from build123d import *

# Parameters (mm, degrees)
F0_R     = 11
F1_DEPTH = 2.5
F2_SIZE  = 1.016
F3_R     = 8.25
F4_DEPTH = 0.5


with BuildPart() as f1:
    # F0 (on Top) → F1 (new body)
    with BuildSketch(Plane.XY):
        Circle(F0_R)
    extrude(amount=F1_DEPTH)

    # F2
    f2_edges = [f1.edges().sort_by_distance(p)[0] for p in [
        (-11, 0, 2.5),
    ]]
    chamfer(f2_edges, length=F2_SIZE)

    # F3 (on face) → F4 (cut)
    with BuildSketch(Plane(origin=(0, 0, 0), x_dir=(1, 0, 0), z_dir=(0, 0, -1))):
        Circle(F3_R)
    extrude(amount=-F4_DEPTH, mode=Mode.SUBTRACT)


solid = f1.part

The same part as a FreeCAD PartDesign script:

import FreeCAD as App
import Part
import Sketcher
from FreeCAD import Vector


def edges_at(feature, points):
    """Names of the edges that pass closest to the given points."""
    edges = feature.Shape.Edges
    near = lambda p: min(range(len(edges)), key=lambda i: edges[i].distToShape(Part.Vertex(*p))[0])
    return sorted({f"Edge{near(p) + 1}" for p in points})

doc = App.newDocument("Part")
params = doc.addObject("Spreadsheet::Sheet", "Params")
for row, (alias, value) in enumerate([
    ("sketch1_diameter", "22 mm"),
    ("pad1_length", "2.5 mm"),
    ("chamfer_size", "1.016 mm"),
    ("sketch2_diameter", "16.5 mm"),
    ("pocket1_length", "0.5 mm"),
], start=1):
    params.set(f"A{row}", alias)
    params.set(f"B{row}", "=" + value)
    params.setAlias(f"B{row}", alias)

body = doc.addObject("PartDesign::Body", "Body")

# Sketch on XY plane
sketch1 = body.newObject("Sketcher::SketchObject", "Sketch")
sketch1.AttachmentSupport = (doc.getObject("XY_Plane"), [""])
sketch1.MapMode = "FlatFace"
sketch1.addGeometry(Part.Circle(Vector(0, 0, 0), Vector(0, 0, 1), 11), False)
sketch1.addConstraint([
    Sketcher.Constraint("Coincident", 0, 3, -1, 1),
    Sketcher.Constraint("Diameter", 0, 22.0),
])
sketch1.setExpression("Constraints[1]", "Params.sketch1_diameter")
pad1 = body.newObject("PartDesign::Pad", "Pad")
pad1.Profile = sketch1
pad1.setExpression("Length", "Params.pad1_length")
doc.recompute()

chamfer = body.newObject("PartDesign::Chamfer", "Chamfer")
chamfer.Base = (pad1, edges_at(pad1, [(-11, 0, 2.5)]))
chamfer.setExpression("Size", "Params.chamfer_size")

# Sketch on XY plane
sketch2 = body.newObject("Sketcher::SketchObject", "Sketch001")
sketch2.AttachmentSupport = (doc.getObject("XY_Plane"), [""])
sketch2.MapMode = "FlatFace"
sketch2.addGeometry(Part.Circle(Vector(0, 0, 0), Vector(0, 0, 1), 8.25), False)
sketch2.addConstraint([
    Sketcher.Constraint("Coincident", 0, 3, -1, 1),
    Sketcher.Constraint("Diameter", 0, 16.5),
])
sketch2.setExpression("Constraints[1]", "Params.sketch2_diameter")
pocket1 = body.newObject("PartDesign::Pocket", "Pocket")
pocket1.Profile = sketch2
pocket1.setExpression("Length", "Params.pocket1_length")
pocket1.Reversed = True

doc.recompute()
